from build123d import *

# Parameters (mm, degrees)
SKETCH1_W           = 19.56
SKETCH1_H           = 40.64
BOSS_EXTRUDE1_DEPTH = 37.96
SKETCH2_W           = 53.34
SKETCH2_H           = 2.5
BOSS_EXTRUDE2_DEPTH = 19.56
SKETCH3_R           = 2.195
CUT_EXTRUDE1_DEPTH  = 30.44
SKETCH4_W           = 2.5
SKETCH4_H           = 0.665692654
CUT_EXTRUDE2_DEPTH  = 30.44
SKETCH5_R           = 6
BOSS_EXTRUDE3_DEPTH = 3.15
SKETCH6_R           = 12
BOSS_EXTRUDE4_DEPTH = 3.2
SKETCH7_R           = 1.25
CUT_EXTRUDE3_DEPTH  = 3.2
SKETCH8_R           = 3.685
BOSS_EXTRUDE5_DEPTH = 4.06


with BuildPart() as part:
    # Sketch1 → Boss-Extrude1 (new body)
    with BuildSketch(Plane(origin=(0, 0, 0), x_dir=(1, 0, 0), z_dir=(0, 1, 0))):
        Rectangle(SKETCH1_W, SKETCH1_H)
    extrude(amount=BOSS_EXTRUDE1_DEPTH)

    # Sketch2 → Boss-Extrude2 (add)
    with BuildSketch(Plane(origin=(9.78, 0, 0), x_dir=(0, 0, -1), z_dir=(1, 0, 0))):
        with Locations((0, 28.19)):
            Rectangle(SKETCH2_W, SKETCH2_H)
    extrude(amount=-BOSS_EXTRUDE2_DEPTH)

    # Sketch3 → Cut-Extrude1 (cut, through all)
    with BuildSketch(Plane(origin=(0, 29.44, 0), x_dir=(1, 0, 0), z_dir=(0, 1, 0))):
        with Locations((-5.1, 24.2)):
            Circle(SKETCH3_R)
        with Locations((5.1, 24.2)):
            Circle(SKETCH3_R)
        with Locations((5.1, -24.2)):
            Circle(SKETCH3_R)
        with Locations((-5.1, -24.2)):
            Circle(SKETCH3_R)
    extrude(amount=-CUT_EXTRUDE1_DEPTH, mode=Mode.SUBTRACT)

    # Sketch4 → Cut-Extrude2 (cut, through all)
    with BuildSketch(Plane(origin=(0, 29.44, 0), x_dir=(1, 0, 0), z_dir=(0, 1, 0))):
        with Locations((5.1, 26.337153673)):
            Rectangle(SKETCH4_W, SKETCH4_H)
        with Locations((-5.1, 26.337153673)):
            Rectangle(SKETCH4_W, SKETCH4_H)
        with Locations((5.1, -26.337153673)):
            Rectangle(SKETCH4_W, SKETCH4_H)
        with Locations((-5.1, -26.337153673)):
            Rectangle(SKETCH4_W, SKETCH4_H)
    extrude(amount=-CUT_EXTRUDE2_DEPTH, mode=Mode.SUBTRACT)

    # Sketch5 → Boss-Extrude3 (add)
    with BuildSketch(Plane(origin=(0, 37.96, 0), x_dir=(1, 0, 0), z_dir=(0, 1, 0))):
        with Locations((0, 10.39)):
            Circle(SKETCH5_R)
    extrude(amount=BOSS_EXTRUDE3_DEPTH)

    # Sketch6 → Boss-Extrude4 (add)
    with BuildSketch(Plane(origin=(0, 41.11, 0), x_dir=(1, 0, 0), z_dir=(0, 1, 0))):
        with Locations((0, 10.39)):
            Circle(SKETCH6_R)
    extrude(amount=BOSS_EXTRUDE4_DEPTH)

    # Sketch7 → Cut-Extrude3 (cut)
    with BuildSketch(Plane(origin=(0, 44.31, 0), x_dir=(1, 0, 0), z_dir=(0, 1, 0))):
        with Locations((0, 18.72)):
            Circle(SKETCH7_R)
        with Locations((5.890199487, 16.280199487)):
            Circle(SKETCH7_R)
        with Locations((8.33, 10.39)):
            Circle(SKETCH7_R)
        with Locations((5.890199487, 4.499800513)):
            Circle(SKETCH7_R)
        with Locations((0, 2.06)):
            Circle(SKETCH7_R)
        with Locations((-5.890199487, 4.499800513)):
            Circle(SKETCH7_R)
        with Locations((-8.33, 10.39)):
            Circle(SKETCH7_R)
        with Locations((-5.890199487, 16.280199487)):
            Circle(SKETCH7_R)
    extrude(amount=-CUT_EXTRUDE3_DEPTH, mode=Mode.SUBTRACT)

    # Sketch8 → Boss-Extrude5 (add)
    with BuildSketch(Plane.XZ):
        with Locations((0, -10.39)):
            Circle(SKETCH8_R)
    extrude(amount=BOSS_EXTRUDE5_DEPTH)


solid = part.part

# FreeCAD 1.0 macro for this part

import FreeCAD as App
import Part
import Sketcher
from FreeCAD import Vector

doc = App.newDocument("Part")
params = doc.addObject("Spreadsheet::Sheet", "Params")
for row, (alias, value) in enumerate([
    ("sketch1_width", "19.56 mm"),
    ("sketch1_height", "40.64 mm"),
    ("pad1_length", "37.96 mm"),
    ("sketch2_width", "2.5 mm"),
    ("sketch2_height", "53.34 mm"),
    ("pad2_length", "19.56 mm"),
    ("sketch3_diameter", "4.39 mm"),
    ("sketch4_width", "2.5 mm"),
    ("sketch5_diameter", "12 mm"),
    ("pad3_length", "3.15 mm"),
    ("sketch6_diameter", "24 mm"),
    ("pad4_length", "3.2 mm"),
    ("sketch7_diameter", "2.5 mm"),
    ("pocket3_length", "3.2 mm"),
    ("sketch8_diameter", "7.37 mm"),
    ("pad5_length", "4.06 mm"),
], start=1):
    params.set(f"A{row}", alias)
    params.set(f"B{row}", "=" + value)
    params.setAlias(f"B{row}", alias)

body = doc.addObject("PartDesign::Body", "Body")

sketch1 = body.newObject("Sketcher::SketchObject", "Sketch")
sketch1.AttachmentSupport = (doc.getObject("XZ_Plane"), [""])
sketch1.MapMode = "FlatFace"
sketch1.addGeometry(Part.LineSegment(Vector(-10, -20, 0), Vector(-10, 20, 0)), False)
sketch1.addGeometry(Part.LineSegment(Vector(-10, 20, 0), Vector(10, 20, 0)), False)
sketch1.addGeometry(Part.LineSegment(Vector(10, 20, 0), Vector(10, -20, 0)), False)
sketch1.addGeometry(Part.LineSegment(Vector(10, -20, 0), Vector(-10, -20, 0)), False)
sketch1.addConstraint(Sketcher.Constraint("Coincident", 0, 2, 1, 1))
sketch1.addConstraint(Sketcher.Constraint("Coincident", 1, 2, 2, 1))
sketch1.addConstraint(Sketcher.Constraint("Coincident", 2, 2, 3, 1))
sketch1.addConstraint(Sketcher.Constraint("Coincident", 3, 2, 0, 1))
sketch1.addConstraint(Sketcher.Constraint("Vertical", 0))
sketch1.addConstraint(Sketcher.Constraint("Horizontal", 1))
sketch1.addConstraint(Sketcher.Constraint("Vertical", 2))
sketch1.addConstraint(Sketcher.Constraint("Horizontal", 3))
sketch1.addConstraint(Sketcher.Constraint("Symmetric", 0, 2, 2, 2, -1, 1))
sketch1.addConstraint(Sketcher.Constraint("DistanceX", 1, 1, 1, 2, 19.56))
sketch1.addConstraint(Sketcher.Constraint("DistanceY", 0, 1, 0, 2, 40.64))
sketch1.setExpression("Constraints[9]", "Params.sketch1_width")
sketch1.setExpression("Constraints[10]", "Params.sketch1_height")
pad1 = body.newObject("PartDesign::Pad", "Pad")
pad1.Profile = sketch1
pad1.setExpression("Length", "Params.pad1_length")
pad1.Reversed = True

sketch2 = body.newObject("Sketcher::SketchObject", "Sketch001")
sketch2.AttachmentSupport = (doc.getObject("YZ_Plane"), [""])
sketch2.MapMode = "FlatFace"
sketch2.AttachmentOffset = App.Placement(Vector(0, 0, 9.78), App.Rotation())
sketch2.addGeometry(Part.LineSegment(Vector(29.4, 26.7, 0), Vector(26.9, 26.7, 0)), False)
sketch2.addGeometry(Part.LineSegment(Vector(26.9, 26.7, 0), Vector(26.9, -26.7, 0)), False)
sketch2.addGeometry(Part.LineSegment(Vector(26.9, -26.7, 0), Vector(29.4, -26.7, 0)), False)
sketch2.addGeometry(Part.LineSegment(Vector(29.4, -26.7, 0), Vector(29.4, 26.7, 0)), False)
sketch2.addConstraint(Sketcher.Constraint("Coincident", 0, 2, 1, 1))
sketch2.addConstraint(Sketcher.Constraint("Coincident", 1, 2, 2, 1))
sketch2.addConstraint(Sketcher.Constraint("Coincident", 2, 2, 3, 1))
sketch2.addConstraint(Sketcher.Constraint("Coincident", 3, 2, 0, 1))
sketch2.addConstraint(Sketcher.Constraint("Horizontal", 0))
sketch2.addConstraint(Sketcher.Constraint("Vertical", 1))
sketch2.addConstraint(Sketcher.Constraint("Horizontal", 2))
sketch2.addConstraint(Sketcher.Constraint("Vertical", 3))
sketch2.addConstraint(Sketcher.Constraint("DistanceX", 0, 2, 0, 1, 2.5))
sketch2.addConstraint(Sketcher.Constraint("DistanceY", 1, 2, 1, 1, 53.34))
sketch2.addConstraint(Sketcher.Constraint("DistanceX", -1, 1, 0, 2, 26.94))
sketch2.addConstraint(Sketcher.Constraint("DistanceY", -1, 1, 0, 2, 26.67))
sketch2.setExpression("Constraints[8]", "Params.sketch2_width")
sketch2.setExpression("Constraints[9]", "Params.sketch2_height")
pad2 = body.newObject("PartDesign::Pad", "Pad001")
pad2.Profile = sketch2
pad2.setExpression("Length", "Params.pad2_length")
pad2.Reversed = True

sketch3 = body.newObject("Sketcher::SketchObject", "Sketch002")
sketch3.AttachmentSupport = (doc.getObject("XZ_Plane"), [""])
sketch3.MapMode = "FlatFace"
sketch3.AttachmentOffset = App.Placement(Vector(0, 0, -29.44), App.Rotation())
sketch3.addGeometry(Part.Circle(Vector(-5.1, -24.2, 0), Vector(0, 0, 1), 2.2), False)
sketch3.addGeometry(Part.Circle(Vector(5.1, -24.2, 0), Vector(0, 0, 1), 2.2), False)
sketch3.addGeometry(Part.Circle(Vector(5.1, 24.2, 0), Vector(0, 0, 1), 2.2), False)
sketch3.addGeometry(Part.Circle(Vector(-5.1, 24.2, 0), Vector(0, 0, 1), 2.2), False)
sketch3.addConstraint(Sketcher.Constraint("Equal", 0, 1))
sketch3.addConstraint(Sketcher.Constraint("Equal", 1, 2))
sketch3.addConstraint(Sketcher.Constraint("Equal", 2, 3))
sketch3.addConstraint(Sketcher.Constraint("Symmetric", 0, 3, 2, 3, -1, 1))
sketch3.addConstraint(Sketcher.Constraint("Symmetric", 1, 3, 3, 3, -1, 1))
sketch3.addConstraint(Sketcher.Constraint("Symmetric", 0, 3, 1, 3, -2))
sketch3.addConstraint(Sketcher.Constraint("Diameter", 0, 4.39))
sketch3.addConstraint(Sketcher.Constraint("DistanceX", 0, 3, -1, 1, 5.1))
sketch3.addConstraint(Sketcher.Constraint("DistanceY", 0, 3, -1, 1, 24.2))
sketch3.setExpression("Constraints[6]", "Params.sketch3_diameter")
pocket1 = body.newObject("PartDesign::Pocket", "Pocket")
pocket1.Profile = sketch3
pocket1.Type = "ThroughAll"
pocket1.Reversed = True

sketch4 = body.newObject("Sketcher::SketchObject", "Sketch003")
sketch4.AttachmentSupport = (doc.getObject("XZ_Plane"), [""])
sketch4.MapMode = "FlatFace"
sketch4.AttachmentOffset = App.Placement(Vector(0, 0, -29.44), App.Rotation())
sketch4.addGeometry(Part.LineSegment(Vector(3.9, -26.7, 0), Vector(3.9, -26, 0)), False)
sketch4.addGeometry(Part.LineSegment(Vector(3.9, -26, 0), Vector(6.3, -26, 0)), False)
sketch4.addGeometry(Part.LineSegment(Vector(6.3, -26, 0), Vector(6.3, -26.7, 0)), False)
sketch4.addGeometry(Part.LineSegment(Vector(6.3, -26.7, 0), Vector(3.9, -26.7, 0)), False)
sketch4.addGeometry(Part.LineSegment(Vector(-6.3, -26.7, 0), Vector(-6.3, -26, 0)), False)
sketch4.addGeometry(Part.LineSegment(Vector(-6.3, -26, 0), Vector(-3.9, -26, 0)), False)
sketch4.addGeometry(Part.LineSegment(Vector(-3.9, -26, 0), Vector(-3.9, -26.7, 0)), False)
sketch4.addGeometry(Part.LineSegment(Vector(-3.9, -26.7, 0), Vector(-6.3, -26.7, 0)), False)
sketch4.addGeometry(Part.LineSegment(Vector(3.9, 26, 0), Vector(3.9, 26.7, 0)), False)
sketch4.addGeometry(Part.LineSegment(Vector(3.9, 26.7, 0), Vector(6.3, 26.7, 0)), False)
sketch4.addGeometry(Part.LineSegment(Vector(6.3, 26.7, 0), Vector(6.3, 26, 0)), False)
sketch4.addGeometry(Part.LineSegment(Vector(6.3, 26, 0), Vector(3.9, 26, 0)), False)
sketch4.addGeometry(Part.LineSegment(Vector(-6.3, 26, 0), Vector(-6.3, 26.7, 0)), False)
sketch4.addGeometry(Part.LineSegment(Vector(-6.3, 26.7, 0), Vector(-3.9, 26.7, 0)), False)
sketch4.addGeometry(Part.LineSegment(Vector(-3.9, 26.7, 0), Vector(-3.9, 26, 0)), False)
sketch4.addGeometry(Part.LineSegment(Vector(-3.9, 26, 0), Vector(-6.3, 26, 0)), False)
sketch4.addConstraint(Sketcher.Constraint("Coincident", 0, 2, 1, 1))
sketch4.addConstraint(Sketcher.Constraint("Coincident", 1, 2, 2, 1))
sketch4.addConstraint(Sketcher.Constraint("Coincident", 2, 2, 3, 1))
sketch4.addConstraint(Sketcher.Constraint("Coincident", 3, 2, 0, 1))
sketch4.addConstraint(Sketcher.Constraint("Coincident", 4, 2, 5, 1))
sketch4.addConstraint(Sketcher.Constraint("Coincident", 5, 2, 6, 1))
sketch4.addConstraint(Sketcher.Constraint("Coincident", 6, 2, 7, 1))
sketch4.addConstraint(Sketcher.Constraint("Coincident", 7, 2, 4, 1))
sketch4.addConstraint(Sketcher.Constraint("Coincident", 8, 2, 9, 1))
sketch4.addConstraint(Sketcher.Constraint("Coincident", 9, 2, 10, 1))
sketch4.addConstraint(Sketcher.Constraint("Coincident", 10, 2, 11, 1))
sketch4.addConstraint(Sketcher.Constraint("Coincident", 11, 2, 8, 1))
sketch4.addConstraint(Sketcher.Constraint("Coincident", 12, 2, 13, 1))
sketch4.addConstraint(Sketcher.Constraint("Coincident", 13, 2, 14, 1))
sketch4.addConstraint(Sketcher.Constraint("Coincident", 14, 2, 15, 1))
sketch4.addConstraint(Sketcher.Constraint("Coincident", 15, 2, 12, 1))
sketch4.addConstraint(Sketcher.Constraint("Vertical", 0))
sketch4.addConstraint(Sketcher.Constraint("Horizontal", 1))
sketch4.addConstraint(Sketcher.Constraint("Vertical", 2))
sketch4.addConstraint(Sketcher.Constraint("Horizontal", 3))
sketch4.addConstraint(Sketcher.Constraint("Vertical", 4))
sketch4.addConstraint(Sketcher.Constraint("Horizontal", 5))
sketch4.addConstraint(Sketcher.Constraint("Vertical", 6))
sketch4.addConstraint(Sketcher.Constraint("Horizontal", 7))
sketch4.addConstraint(Sketcher.Constraint("Vertical", 8))
sketch4.addConstraint(Sketcher.Constraint("Horizontal", 9))
sketch4.addConstraint(Sketcher.Constraint("Vertical", 10))
sketch4.addConstraint(Sketcher.Constraint("Horizontal", 11))
sketch4.addConstraint(Sketcher.Constraint("Vertical", 12))
sketch4.addConstraint(Sketcher.Constraint("Horizontal", 13))
sketch4.addConstraint(Sketcher.Constraint("Vertical", 14))
sketch4.addConstraint(Sketcher.Constraint("Horizontal", 15))
sketch4.addConstraint(Sketcher.Constraint("Symmetric", 6, 2, 8, 2, -1, 1))
sketch4.addConstraint(Sketcher.Constraint("Symmetric", 4, 2, 10, 2, -1, 1))
sketch4.addConstraint(Sketcher.Constraint("Symmetric", 2, 2, 12, 2, -1, 1))
sketch4.addConstraint(Sketcher.Constraint("Symmetric", 0, 2, 14, 2, -1, 1))
sketch4.addConstraint(Sketcher.Constraint("Symmetric", 1, 2, 4, 2, -2))
sketch4.addConstraint(Sketcher.Constraint("Symmetric", 3, 2, 6, 2, -2))
sketch4.addConstraint(Sketcher.Constraint("DistanceX", 1, 1, 1, 2, 2.5))
sketch4.addConstraint(Sketcher.Constraint("DistanceX", 4, 2, 0, 2, 10.2))
sketch4.addConstraint(Sketcher.Constraint("DistanceY", 2, 2, -1, 1, 26.67))
sketch4.addConstraint(Sketcher.Constraint("DistanceY", 0, 1, 0, 2, 0.665693))
sketch4.setExpression("Constraints[38]", "Params.sketch4_width")
pocket2 = body.newObject("PartDesign::Pocket", "Pocket001")
pocket2.Profile = sketch4
pocket2.Type = "ThroughAll"
pocket2.Reversed = True

sketch5 = body.newObject("Sketcher::SketchObject", "Sketch004")
sketch5.AttachmentSupport = (doc.getObject("XZ_Plane"), [""])
sketch5.MapMode = "FlatFace"
sketch5.AttachmentOffset = App.Placement(Vector(0, 0, -37.96), App.Rotation())
sketch5.addGeometry(Part.Circle(Vector(0, -10, 0), Vector(0, 0, 1), 6), False)
sketch5.addConstraint(Sketcher.Constraint("PointOnObject", 0, 3, -2))
sketch5.addConstraint(Sketcher.Constraint("Diameter", 0, 12.0))
sketch5.addConstraint(Sketcher.Constraint("DistanceY", 0, 3, -1, 1, 10.39))
sketch5.setExpression("Constraints[1]", "Params.sketch5_diameter")
pad3 = body.newObject("PartDesign::Pad", "Pad002")
pad3.Profile = sketch5
pad3.setExpression("Length", "Params.pad3_length")
pad3.Reversed = True

sketch6 = body.newObject("Sketcher::SketchObject", "Sketch005")
sketch6.AttachmentSupport = (doc.getObject("XZ_Plane"), [""])
sketch6.MapMode = "FlatFace"
sketch6.AttachmentOffset = App.Placement(Vector(0, 0, -41.11), App.Rotation())
sketch6.addGeometry(Part.Circle(Vector(0, -10, 0), Vector(0, 0, 1), 12), False)
sketch6.addConstraint(Sketcher.Constraint("PointOnObject", 0, 3, -2))
sketch6.addConstraint(Sketcher.Constraint("Diameter", 0, 24.0))
sketch6.addConstraint(Sketcher.Constraint("DistanceY", 0, 3, -1, 1, 10.39))
sketch6.setExpression("Constraints[1]", "Params.sketch6_diameter")
pad4 = body.newObject("PartDesign::Pad", "Pad003")
pad4.Profile = sketch6
pad4.setExpression("Length", "Params.pad4_length")
pad4.Reversed = True

sketch7 = body.newObject("Sketcher::SketchObject", "Sketch006")
sketch7.AttachmentSupport = (doc.getObject("XZ_Plane"), [""])
sketch7.MapMode = "FlatFace"
sketch7.AttachmentOffset = App.Placement(Vector(0, 0, -44.31), App.Rotation())
sketch7.addGeometry(Part.Circle(Vector(0, -18.7, 0), Vector(0, 0, 1), 1.2), False)
sketch7.addGeometry(Part.Circle(Vector(5.9, -16.3, 0), Vector(0, 0, 1), 1.2), False)
sketch7.addGeometry(Part.Circle(Vector(8.3, -10.4, 0), Vector(0, 0, 1), 1.2), False)
sketch7.addGeometry(Part.Circle(Vector(5.9, -4.5, 0), Vector(0, 0, 1), 1.2), False)
sketch7.addGeometry(Part.Circle(Vector(0, -2.1, 0), Vector(0, 0, 1), 1.2), False)
sketch7.addGeometry(Part.Circle(Vector(-5.9, -4.5, 0), Vector(0, 0, 1), 1.2), False)
sketch7.addGeometry(Part.Circle(Vector(-8.3, -10.4, 0), Vector(0, 0, 1), 1.2), False)
sketch7.addGeometry(Part.Circle(Vector(-5.9, -16.3, 0), Vector(0, 0, 1), 1.2), False)
sketch7.addConstraint(Sketcher.Constraint("Equal", 0, 1))
sketch7.addConstraint(Sketcher.Constraint("Equal", 1, 2))
sketch7.addConstraint(Sketcher.Constraint("Equal", 2, 3))
sketch7.addConstraint(Sketcher.Constraint("Equal", 3, 4))
sketch7.addConstraint(Sketcher.Constraint("Equal", 4, 5))
sketch7.addConstraint(Sketcher.Constraint("Equal", 5, 6))
sketch7.addConstraint(Sketcher.Constraint("Equal", 6, 7))
sketch7.addConstraint(Sketcher.Constraint("Symmetric", 3, 3, 5, 3, -2))
sketch7.addConstraint(Sketcher.Constraint("Symmetric", 2, 3, 6, 3, -2))
sketch7.addConstraint(Sketcher.Constraint("Symmetric", 1, 3, 7, 3, -2))
sketch7.addConstraint(Sketcher.Constraint("PointOnObject", 0, 3, -2))
sketch7.addConstraint(Sketcher.Constraint("PointOnObject", 4, 3, -2))
sketch7.addConstraint(Sketcher.Constraint("Vertical", 1, 3, 3, 3))
sketch7.addConstraint(Sketcher.Constraint("Diameter", 0, 2.5))
sketch7.addConstraint(Sketcher.Constraint("DistanceY", 0, 3, -1, 1, 18.72))
sketch7.addConstraint(Sketcher.Constraint("DistanceX", -1, 1, 2, 3, 8.33))
sketch7.addConstraint(Sketcher.Constraint("DistanceY", 2, 3, -1, 1, 10.39))
sketch7.addConstraint(Sketcher.Constraint("DistanceY", 4, 3, -1, 1, 2.06))
sketch7.addConstraint(Sketcher.Constraint("DistanceX", -1, 1, 1, 3, 5.890199))
sketch7.addConstraint(Sketcher.Constraint("DistanceY", 1, 3, -1, 1, 16.280199))
sketch7.addConstraint(Sketcher.Constraint("DistanceY", 3, 3, -1, 1, 4.499801))
sketch7.setExpression("Constraints[13]", "Params.sketch7_diameter")
pocket3 = body.newObject("PartDesign::Pocket", "Pocket002")
pocket3.Profile = sketch7
pocket3.setExpression("Length", "Params.pocket3_length")
pocket3.Reversed = True

sketch8 = body.newObject("Sketcher::SketchObject", "Sketch007")
sketch8.AttachmentSupport = (doc.getObject("XZ_Plane"), [""])
sketch8.MapMode = "FlatFace"
sketch8.addGeometry(Part.Circle(Vector(0, -10.4, 0), Vector(0, 0, 1), 3.7), False)
sketch8.addConstraint(Sketcher.Constraint("PointOnObject", 0, 3, -2))
sketch8.addConstraint(Sketcher.Constraint("Diameter", 0, 7.37))
sketch8.addConstraint(Sketcher.Constraint("DistanceY", 0, 3, -1, 1, 10.39))
sketch8.setExpression("Constraints[1]", "Params.sketch8_diameter")
pad5 = body.newObject("PartDesign::Pad", "Pad004")
pad5.Profile = sketch8
pad5.setExpression("Length", "Params.pad5_length")

doc.recompute()
